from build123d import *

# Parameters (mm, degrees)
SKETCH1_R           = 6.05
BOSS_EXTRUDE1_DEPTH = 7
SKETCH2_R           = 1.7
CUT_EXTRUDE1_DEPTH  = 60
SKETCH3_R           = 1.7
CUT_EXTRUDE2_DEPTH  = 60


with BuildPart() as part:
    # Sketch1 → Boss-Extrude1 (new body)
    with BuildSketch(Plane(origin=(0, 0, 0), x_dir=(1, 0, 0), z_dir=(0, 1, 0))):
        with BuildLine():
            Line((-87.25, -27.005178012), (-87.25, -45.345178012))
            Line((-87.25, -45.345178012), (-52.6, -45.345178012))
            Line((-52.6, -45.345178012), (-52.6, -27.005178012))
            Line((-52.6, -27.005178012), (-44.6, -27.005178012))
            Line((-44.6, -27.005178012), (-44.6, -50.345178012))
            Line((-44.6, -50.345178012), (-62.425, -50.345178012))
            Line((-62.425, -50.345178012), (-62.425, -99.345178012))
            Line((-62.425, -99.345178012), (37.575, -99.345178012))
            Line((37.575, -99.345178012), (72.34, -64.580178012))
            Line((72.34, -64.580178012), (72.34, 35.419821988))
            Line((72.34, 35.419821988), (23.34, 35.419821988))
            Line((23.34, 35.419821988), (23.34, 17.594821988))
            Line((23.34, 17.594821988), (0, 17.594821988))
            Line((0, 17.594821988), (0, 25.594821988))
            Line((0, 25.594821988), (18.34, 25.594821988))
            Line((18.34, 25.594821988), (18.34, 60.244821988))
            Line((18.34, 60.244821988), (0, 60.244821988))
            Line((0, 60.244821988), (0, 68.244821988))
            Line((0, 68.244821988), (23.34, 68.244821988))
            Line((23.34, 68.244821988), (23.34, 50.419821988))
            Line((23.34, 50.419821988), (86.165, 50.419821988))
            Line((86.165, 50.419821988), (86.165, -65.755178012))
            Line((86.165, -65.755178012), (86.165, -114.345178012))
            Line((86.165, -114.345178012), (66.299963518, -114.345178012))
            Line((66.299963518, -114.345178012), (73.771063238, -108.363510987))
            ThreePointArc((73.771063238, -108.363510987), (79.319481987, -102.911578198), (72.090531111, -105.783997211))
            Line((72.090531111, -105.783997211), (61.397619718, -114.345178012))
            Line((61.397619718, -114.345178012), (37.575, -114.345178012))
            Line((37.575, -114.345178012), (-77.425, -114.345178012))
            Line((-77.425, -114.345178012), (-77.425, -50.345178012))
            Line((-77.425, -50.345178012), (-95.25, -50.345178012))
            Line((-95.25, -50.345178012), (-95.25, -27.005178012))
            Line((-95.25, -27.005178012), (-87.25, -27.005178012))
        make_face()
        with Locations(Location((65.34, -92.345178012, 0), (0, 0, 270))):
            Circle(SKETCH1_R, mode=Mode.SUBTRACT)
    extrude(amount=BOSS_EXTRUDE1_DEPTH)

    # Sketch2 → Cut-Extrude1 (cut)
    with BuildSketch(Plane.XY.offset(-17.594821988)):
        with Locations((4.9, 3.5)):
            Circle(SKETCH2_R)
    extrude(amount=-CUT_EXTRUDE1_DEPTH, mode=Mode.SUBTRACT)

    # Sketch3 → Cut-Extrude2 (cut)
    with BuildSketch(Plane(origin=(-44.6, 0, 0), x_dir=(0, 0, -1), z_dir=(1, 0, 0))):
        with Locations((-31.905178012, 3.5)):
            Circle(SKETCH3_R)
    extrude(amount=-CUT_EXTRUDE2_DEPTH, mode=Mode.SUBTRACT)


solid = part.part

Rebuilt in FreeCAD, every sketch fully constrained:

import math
import FreeCAD as App
import Part
import Sketcher
from FreeCAD import Vector
Q = App.Units.Quantity

doc = App.newDocument("Part")
body = doc.addObject("PartDesign::Body", "Body")

sketch1 = body.newObject("Sketcher::SketchObject", "Sketch")
sketch1.AttachmentSupport = (doc.getObject("XZ_Plane"), [""])
sketch1.MapMode = "FlatFace"
sketch1.addGeometry([
    Part.LineSegment(Vector(-87.2, 45.3, 0), Vector(-87.2, 27, 0)),
    Part.LineSegment(Vector(-87.2, 27, 0), Vector(-95.2, 27, 0)),
    Part.LineSegment(Vector(-95.2, 27, 0), Vector(-95.2, 50.3, 0)),
    Part.LineSegment(Vector(-95.2, 50.3, 0), Vector(-77.4, 50.3, 0)),
    Part.LineSegment(Vector(-77.4, 50.3, 0), Vector(-77.4, 114.3, 0)),
    Part.LineSegment(Vector(-77.4, 114.3, 0), Vector(61.4, 114.3, 0)),
    Part.LineSegment(Vector(61.4, 114.3, 0), Vector(72.1, 105.8, 0)),
    Part.ArcOfCircle(Part.Circle(Vector(76, 105.1, 0), Vector(0, 0, 1), 4), math.radians(170), math.radians(484)),
    Part.LineSegment(Vector(73.8, 108.4, 0), Vector(66.3, 114.3, 0)),
    Part.LineSegment(Vector(66.3, 114.3, 0), Vector(86.2, 114.3, 0)),
    Part.LineSegment(Vector(86.2, 114.3, 0), Vector(86.2, -50.4, 0)),
    Part.LineSegment(Vector(86.2, -50.4, 0), Vector(23.3, -50.4, 0)),
    Part.LineSegment(Vector(23.3, -50.4, 0), Vector(23.3, -68.2, 0)),
    Part.LineSegment(Vector(23.3, -68.2, 0), Vector(0, -68.2, 0)),
    Part.LineSegment(Vector(0, -68.2, 0), Vector(0, -60.2, 0)),
    Part.LineSegment(Vector(0, -60.2, 0), Vector(18.3, -60.2, 0)),
    Part.LineSegment(Vector(18.3, -60.2, 0), Vector(18.3, -25.6, 0)),
    Part.LineSegment(Vector(18.3, -25.6, 0), Vector(0, -25.6, 0)),
    Part.LineSegment(Vector(0, -25.6, 0), Vector(0, -17.6, 0)),
    Part.LineSegment(Vector(0, -17.6, 0), Vector(23.3, -17.6, 0)),
    Part.LineSegment(Vector(23.3, -17.6, 0), Vector(23.3, -35.4, 0)),
    Part.LineSegment(Vector(23.3, -35.4, 0), Vector(72.3, -35.4, 0)),
    Part.LineSegment(Vector(72.3, -35.4, 0), Vector(72.3, 64.6, 0)),
    Part.LineSegment(Vector(72.3, 64.6, 0), Vector(37.6, 99.3, 0)),
    Part.LineSegment(Vector(37.6, 99.3, 0), Vector(-62.4, 99.3, 0)),
    Part.LineSegment(Vector(-62.4, 99.3, 0), Vector(-62.4, 50.3, 0)),
    Part.LineSegment(Vector(-62.4, 50.3, 0), Vector(-44.6, 50.3, 0)),
    Part.LineSegment(Vector(-44.6, 50.3, 0), Vector(-44.6, 27, 0)),
    Part.LineSegment(Vector(-44.6, 27, 0), Vector(-52.6, 27, 0)),
    Part.LineSegment(Vector(-52.6, 27, 0), Vector(-52.6, 45.3, 0)),
    Part.LineSegment(Vector(-52.6, 45.3, 0), Vector(-87.2, 45.3, 0)),
    Part.Circle(Vector(65.3, 92.3, 0), Vector(0, 0, 1), 6),
], False)
sketch1.addConstraint([
    Sketcher.Constraint("Coincident", 0, 2, 1, 1),
    Sketcher.Constraint("Coincident", 1, 2, 2, 1),
    Sketcher.Constraint("Coincident", 2, 2, 3, 1),
    Sketcher.Constraint("Coincident", 3, 2, 4, 1),
    Sketcher.Constraint("Coincident", 4, 2, 5, 1),
    Sketcher.Constraint("Coincident", 5, 2, 6, 1),
    Sketcher.Constraint("Coincident", 6, 2, 7, 1),
    Sketcher.Constraint("Coincident", 7, 2, 8, 1),
    Sketcher.Constraint("Coincident", 8, 2, 9, 1),
    Sketcher.Constraint("Coincident", 9, 2, 10, 1),
    Sketcher.Constraint("Coincident", 10, 2, 11, 1),
    Sketcher.Constraint("Coincident", 11, 2, 12, 1),
    Sketcher.Constraint("Coincident", 12, 2, 13, 1),
    Sketcher.Constraint("Coincident", 13, 2, 14, 1),
    Sketcher.Constraint("Coincident", 14, 2, 15, 1),
    Sketcher.Constraint("Coincident", 15, 2, 16, 1),
    Sketcher.Constraint("Coincident", 16, 2, 17, 1),
    Sketcher.Constraint("Coincident", 17, 2, 18, 1),
    Sketcher.Constraint("Coincident", 18, 2, 19, 1),
    Sketcher.Constraint("Coincident", 19, 2, 20, 1),
    Sketcher.Constraint("Coincident", 20, 2, 21, 1),
    Sketcher.Constraint("Coincident", 21, 2, 22, 1),
    Sketcher.Constraint("Coincident", 22, 2, 23, 1),
    Sketcher.Constraint("Coincident", 23, 2, 24, 1),
    Sketcher.Constraint("Coincident", 24, 2, 25, 1),
    Sketcher.Constraint("Coincident", 25, 2, 26, 1),
    Sketcher.Constraint("Coincident", 26, 2, 27, 1),
    Sketcher.Constraint("Coincident", 27, 2, 28, 1),
    Sketcher.Constraint("Coincident", 28, 2, 29, 1),
    Sketcher.Constraint("Coincident", 29, 2, 30, 1),
    Sketcher.Constraint("Coincident", 30, 2, 0, 1),
    Sketcher.Constraint("Vertical", 0),
    Sketcher.Constraint("Horizontal", 1),
    Sketcher.Constraint("Vertical", 2),
    Sketcher.Constraint("Horizontal", 3),
    Sketcher.Constraint("Vertical", 4),
    Sketcher.Constraint("Horizontal", 5),
    Sketcher.Constraint("Horizontal", 9),
    Sketcher.Constraint("Vertical", 10),
    Sketcher.Constraint("Horizontal", 11),
    Sketcher.Constraint("Vertical", 12),
    Sketcher.Constraint("Horizontal", 13),
    Sketcher.Constraint("Vertical", 14),
    Sketcher.Constraint("Horizontal", 15),
    Sketcher.Constraint("Vertical", 16),
    Sketcher.Constraint("Horizontal", 17),
    Sketcher.Constraint("Vertical", 18),
    Sketcher.Constraint("Horizontal", 19),
    Sketcher.Constraint("Vertical", 20),
    Sketcher.Constraint("Horizontal", 21),
    Sketcher.Constraint("Vertical", 22),
    Sketcher.Constraint("Horizontal", 24),
    Sketcher.Constraint("Vertical", 25),
    Sketcher.Constraint("Horizontal", 26),
    Sketcher.Constraint("Vertical", 27),
    Sketcher.Constraint("Horizontal", 28),
    Sketcher.Constraint("Vertical", 29),
    Sketcher.Constraint("Horizontal", 30),
    Sketcher.Constraint("PointOnObject", 13, 2, -2),
    Sketcher.Constraint("PointOnObject", 17, 2, -2),
    Sketcher.Constraint("Parallel", 6, 8),
    Sketcher.Constraint("Horizontal", 5, 2, 8, 2),
    Sketcher.Constraint("Horizontal", 3, 2, 25, 2),
    Sketcher.Constraint("Horizontal", 1, 2, 27, 2),
    Sketcher.Constraint("Vertical", 12, 2, 19, 2),
    Sketcher.Constraint("Equal", 3, 26),
    Sketcher.Constraint("Equal", 1, 28),
    Sketcher.Constraint("Equal", 17, 0),
    Sketcher.Constraint("Equal", 19, 2),
    Sketcher.Constraint("Equal", 26, 12),
    Sketcher.Constraint("Equal", 28, 14),
    Sketcher.Constraint("Equal", 30, 16),
    Sketcher.Constraint("Equal", 14, 18),
    Sketcher.Constraint("Equal", 12, 20),
    Sketcher.Constraint("Equal", 24, 22),
    Sketcher.Constraint("Equal", 21, 25),
    Sketcher.Constraint("Diameter", 31, Q("12.1 mm")),
    Sketcher.Constraint("DistanceX", 1, 2, 1, 1, Q("8 mm")),
    Sketcher.Constraint("DistanceX", 21, 1, 21, 2, Q("49 mm")),
    Sketcher.Constraint("DistanceX", 24, 2, 24, 1, Q("100 mm")),
    Sketcher.Constraint("DistanceY", 4, 1, 4, 2, Q("64 mm")),
    Sketcher.Constraint("Angle", 23, Q("135 deg")),
    Sketcher.Constraint("DistanceY", 2, 2, 31, 3, Q("42 mm")),
    Sketcher.Constraint("DistanceX", 11, 2, 31, 3, Q("42 mm")),
    Sketcher.Constraint("DistanceX", 15, 2, 12, 2, Q("5 mm")),
    Sketcher.Constraint("DistanceY", 11, 2, 20, 2, Q("15 mm")),
    Sketcher.Constraint("DistanceX", 13, 2, 13, 1, Q("23.34 mm")),
    Sketcher.Constraint("DistanceX", 30, 2, 30, 1, Q("34.65 mm")),
    Sketcher.Constraint("DistanceX", 26, 2, -1, 1, Q("44.6 mm")),
    Sketcher.Constraint("DistanceX", 11, 2, 11, 1, Q("62.825 mm")),
    Sketcher.Constraint("Radius", 7, Q("3.967827 mm")),
    Sketcher.Constraint("DistanceX", 5, 1, 5, 2, Q("138.82262 mm")),
    Sketcher.Constraint("DistanceX", 8, 2, 7, 2, Q("7.4711 mm")),
    Sketcher.Constraint("Distance", 6, Q("13.697889 mm")),
    Sketcher.Constraint("DistanceX", 9, 1, 9, 2, Q("19.865036 mm")),
    Sketcher.Constraint("DistanceX", -1, 1, 7, 3, Q("75.994951 mm")),
    Sketcher.Constraint("DistanceY", -1, 1, 31, 3, Q("92.345178 mm")),
])
pad1 = body.newObject("PartDesign::Pad", "Pad")
pad1.Profile = sketch1
pad1.Length = 7
pad1.Reversed = True

sketch2 = body.newObject("Sketcher::SketchObject", "Sketch001")
sketch2.AttachmentSupport = (doc.getObject("XY_Plane"), [""])
sketch2.MapMode = "FlatFace"
sketch2.AttachmentOffset = App.Placement(Vector(0, 0, -17.594822), App.Rotation())
sketch2.addGeometry(Part.Circle(Vector(4.9, 3.5, 0), Vector(0, 0, 1), 1.7), False)
sketch2.addConstraint([
    Sketcher.Constraint("Diameter", 0, Q("3.4 mm")),
    Sketcher.Constraint("DistanceX", -1, 1, 0, 3, Q("4.9 mm")),
    Sketcher.Constraint("DistanceY", -1, 1, 0, 3, Q("3.5 mm")),
])
pocket1 = body.newObject("PartDesign::Pocket", "Pocket")
pocket1.Profile = sketch2
pocket1.Length = 60

sketch3 = body.newObject("Sketcher::SketchObject", "Sketch002")
sketch3.AttachmentSupport = (doc.getObject("YZ_Plane"), [""])
sketch3.MapMode = "FlatFace"
sketch3.AttachmentOffset = App.Placement(Vector(0, 0, -44.6), App.Rotation())
sketch3.addGeometry(Part.Circle(Vector(3.5, 31.9, 0), Vector(0, 0, 1), 1.7), False)
sketch3.addConstraint([
    Sketcher.Constraint("Diameter", 0, Q("3.4 mm")),
    Sketcher.Constraint("DistanceX", -1, 1, 0, 3, Q("3.5 mm")),
    Sketcher.Constraint("DistanceY", -1, 1, 0, 3, Q("31.905178 mm")),
])
pocket2 = body.newObject("PartDesign::Pocket", "Pocket001")
pocket2.Profile = sketch3
pocket2.Length = 60

doc.recompute()
